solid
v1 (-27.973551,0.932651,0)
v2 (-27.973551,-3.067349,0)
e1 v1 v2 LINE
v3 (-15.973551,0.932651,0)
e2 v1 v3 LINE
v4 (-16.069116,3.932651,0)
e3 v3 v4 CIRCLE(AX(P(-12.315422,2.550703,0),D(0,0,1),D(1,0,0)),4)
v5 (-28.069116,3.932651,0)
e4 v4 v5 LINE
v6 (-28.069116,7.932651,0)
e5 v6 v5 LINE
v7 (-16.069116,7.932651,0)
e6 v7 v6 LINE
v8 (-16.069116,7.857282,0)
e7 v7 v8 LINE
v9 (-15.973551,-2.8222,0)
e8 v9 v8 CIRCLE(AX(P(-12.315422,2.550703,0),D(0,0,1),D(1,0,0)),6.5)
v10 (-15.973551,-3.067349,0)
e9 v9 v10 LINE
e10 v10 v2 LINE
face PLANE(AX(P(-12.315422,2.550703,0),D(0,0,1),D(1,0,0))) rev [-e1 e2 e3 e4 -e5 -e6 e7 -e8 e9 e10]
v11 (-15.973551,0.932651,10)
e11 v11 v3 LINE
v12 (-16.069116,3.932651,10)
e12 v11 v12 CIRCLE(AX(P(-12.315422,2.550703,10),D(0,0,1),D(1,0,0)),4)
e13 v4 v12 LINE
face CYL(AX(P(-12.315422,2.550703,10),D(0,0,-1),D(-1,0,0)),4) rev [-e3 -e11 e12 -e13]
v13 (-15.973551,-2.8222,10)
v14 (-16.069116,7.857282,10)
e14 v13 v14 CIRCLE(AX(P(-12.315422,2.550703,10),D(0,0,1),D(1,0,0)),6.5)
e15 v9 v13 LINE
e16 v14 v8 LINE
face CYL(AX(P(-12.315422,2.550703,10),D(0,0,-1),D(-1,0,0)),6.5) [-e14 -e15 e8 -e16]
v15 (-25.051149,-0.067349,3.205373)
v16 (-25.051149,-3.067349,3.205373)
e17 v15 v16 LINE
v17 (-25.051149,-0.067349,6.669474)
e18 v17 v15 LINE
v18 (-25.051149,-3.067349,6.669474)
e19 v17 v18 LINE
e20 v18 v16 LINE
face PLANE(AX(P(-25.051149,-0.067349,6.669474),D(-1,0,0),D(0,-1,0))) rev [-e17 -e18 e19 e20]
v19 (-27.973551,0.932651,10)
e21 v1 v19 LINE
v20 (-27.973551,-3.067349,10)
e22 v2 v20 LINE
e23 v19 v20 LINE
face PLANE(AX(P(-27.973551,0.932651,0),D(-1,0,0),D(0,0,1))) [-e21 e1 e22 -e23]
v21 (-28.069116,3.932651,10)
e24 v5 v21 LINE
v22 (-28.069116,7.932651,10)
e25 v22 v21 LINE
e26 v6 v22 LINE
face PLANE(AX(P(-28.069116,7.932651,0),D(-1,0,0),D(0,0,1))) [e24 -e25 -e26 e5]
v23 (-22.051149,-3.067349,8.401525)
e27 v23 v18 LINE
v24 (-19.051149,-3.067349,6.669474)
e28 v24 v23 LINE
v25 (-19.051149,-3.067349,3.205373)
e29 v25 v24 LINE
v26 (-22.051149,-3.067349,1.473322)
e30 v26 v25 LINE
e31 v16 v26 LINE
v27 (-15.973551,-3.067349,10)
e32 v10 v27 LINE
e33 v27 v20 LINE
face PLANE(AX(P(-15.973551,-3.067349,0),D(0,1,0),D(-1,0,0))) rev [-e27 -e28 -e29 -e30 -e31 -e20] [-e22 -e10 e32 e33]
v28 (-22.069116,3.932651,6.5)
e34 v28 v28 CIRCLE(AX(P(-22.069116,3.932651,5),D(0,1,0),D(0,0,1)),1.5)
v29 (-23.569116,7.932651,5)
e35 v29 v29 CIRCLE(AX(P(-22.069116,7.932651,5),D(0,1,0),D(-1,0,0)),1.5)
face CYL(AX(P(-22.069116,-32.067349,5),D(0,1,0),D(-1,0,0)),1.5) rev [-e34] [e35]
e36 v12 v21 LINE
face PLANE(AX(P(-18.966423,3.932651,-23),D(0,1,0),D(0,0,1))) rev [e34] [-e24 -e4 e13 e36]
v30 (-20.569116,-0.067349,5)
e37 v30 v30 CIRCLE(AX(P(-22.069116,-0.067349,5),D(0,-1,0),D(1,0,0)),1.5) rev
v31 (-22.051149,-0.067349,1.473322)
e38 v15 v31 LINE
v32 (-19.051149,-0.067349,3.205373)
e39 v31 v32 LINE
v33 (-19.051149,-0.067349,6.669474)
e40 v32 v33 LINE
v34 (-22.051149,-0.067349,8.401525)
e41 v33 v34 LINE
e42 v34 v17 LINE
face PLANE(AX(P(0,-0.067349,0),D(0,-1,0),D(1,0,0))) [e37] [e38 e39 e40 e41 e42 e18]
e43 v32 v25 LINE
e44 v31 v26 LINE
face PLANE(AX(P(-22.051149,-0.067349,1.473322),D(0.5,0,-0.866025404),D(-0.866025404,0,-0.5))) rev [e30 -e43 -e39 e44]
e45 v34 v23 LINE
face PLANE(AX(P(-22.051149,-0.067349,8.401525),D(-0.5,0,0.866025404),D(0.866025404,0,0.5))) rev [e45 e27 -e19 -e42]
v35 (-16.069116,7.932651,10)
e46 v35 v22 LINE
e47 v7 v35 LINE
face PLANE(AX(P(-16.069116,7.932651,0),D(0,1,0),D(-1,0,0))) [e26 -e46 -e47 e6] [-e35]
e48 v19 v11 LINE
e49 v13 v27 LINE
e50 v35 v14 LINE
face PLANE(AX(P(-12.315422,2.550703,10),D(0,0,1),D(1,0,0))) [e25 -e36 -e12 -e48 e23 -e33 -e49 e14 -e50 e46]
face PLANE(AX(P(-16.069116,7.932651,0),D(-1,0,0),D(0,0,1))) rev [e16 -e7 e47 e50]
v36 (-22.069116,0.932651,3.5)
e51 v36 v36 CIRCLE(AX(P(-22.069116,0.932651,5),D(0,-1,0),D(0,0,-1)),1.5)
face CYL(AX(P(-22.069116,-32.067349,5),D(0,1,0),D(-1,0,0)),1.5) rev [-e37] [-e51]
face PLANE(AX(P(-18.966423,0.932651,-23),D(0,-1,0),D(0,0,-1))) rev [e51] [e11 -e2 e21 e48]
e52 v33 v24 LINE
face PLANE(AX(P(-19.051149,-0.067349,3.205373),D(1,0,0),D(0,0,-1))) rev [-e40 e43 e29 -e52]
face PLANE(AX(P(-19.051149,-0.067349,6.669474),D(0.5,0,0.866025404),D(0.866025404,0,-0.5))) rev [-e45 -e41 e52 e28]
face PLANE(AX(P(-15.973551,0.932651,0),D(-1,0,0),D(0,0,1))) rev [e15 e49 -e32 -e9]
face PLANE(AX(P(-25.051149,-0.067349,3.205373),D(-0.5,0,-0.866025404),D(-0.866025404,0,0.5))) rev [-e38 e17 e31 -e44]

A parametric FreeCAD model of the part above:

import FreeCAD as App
import Part
import Sketcher
Q = App.Units.Quantity


def add_polygon(sketch, points):
    """Adds a closed chain of lines whose ends are joined by coincident constraints."""
    first, n = sketch.GeometryCount, len(points)
    for a, b in zip(points, points[1:] + points[:1]):
        sketch.addGeometry(Part.LineSegment(App.Vector(*a, 0), App.Vector(*b, 0)), False)
    for i in range(n):
        sketch.addConstraint(Sketcher.Constraint("Coincident", first + i, 2, first + (i + 1) % n, 1))

doc = App.newDocument("Part")
params = doc.addObject("Spreadsheet::Sheet", "Params")
for row, (alias, value) in enumerate([
    ("sketch1_diameter", "13 mm"),
    ("sketch1_diameter2", "8 mm"),
    ("pad1_length", "10 mm"),
    ("sketch2_height", "3 mm"),
    ("pocket1_length", "33 mm"),
    ("sketch3_width", "12 mm"),
    ("sketch3_height", "4 mm"),
    ("pad2_length", "10 mm"),
    ("sketch4_diameter", "3 mm"),
    ("pocket2_length", "40 mm"),
    ("pocket3_length", "3 mm"),
], start=1):
    params.set(f"A{row}", alias)
    params.set(f"B{row}", "=" + value)
    params.setAlias(f"B{row}", alias)

body = doc.addObject("PartDesign::Body", "Body")

sketch1 = body.newObject("Sketcher::SketchObject", "Sketch")
sketch1.AttachmentSupport = (doc.getObject("XY_Plane"), [""])
sketch1.MapMode = "FlatFace"
sketch1.addGeometry(Part.Circle(App.Vector(-12.3, 2.6, 0), App.Vector(0, 0, 1), 6.5), False)
sketch1.addGeometry(Part.Circle(App.Vector(-12.3, 2.6, 0), App.Vector(0, 0, 1), 4), False)
sketch1.addConstraint(Sketcher.Constraint("Coincident", 1, 3, 0, 3))
sketch1.addConstraint(Sketcher.Constraint("Diameter", 0, Q("13 mm")))
sketch1.addConstraint(Sketcher.Constraint("Diameter", 1, Q("8 mm")))
sketch1.addConstraint(Sketcher.Constraint("DistanceX", 0, 3, -1, 1, Q("12.315422 mm")))
sketch1.addConstraint(Sketcher.Constraint("DistanceY", -1, 1, 0, 3, Q("2.550703 mm")))
sketch1.setExpression("Constraints[1]", "Params.sketch1_diameter")
sketch1.setExpression("Constraints[2]", "Params.sketch1_diameter2")
pad1 = body.newObject("PartDesign::Pad", "Pad")
pad1.Profile = sketch1
pad1.setExpression("Length", "Params.pad1_length")

sketch2 = body.newObject("Sketcher::SketchObject", "Sketch001")
sketch2.AttachmentSupport = (doc.getObject("XY_Plane"), [""])
sketch2.MapMode = "FlatFace"
sketch2.AttachmentOffset = App.Placement(App.Vector(0, 0, 10), App.Rotation())
add_polygon(sketch2, [(-19, 3.9), (-19, 0.9), (-15.7, 0.9), (-15.7, 3.9)])
sketch2.addConstraint(Sketcher.Constraint("Vertical", 0))
sketch2.addConstraint(Sketcher.Constraint("Horizontal", 1))
sketch2.addConstraint(Sketcher.Constraint("Vertical", 2))
sketch2.addConstraint(Sketcher.Constraint("Horizontal", 3))
sketch2.addConstraint(Sketcher.Constraint("DistanceY", 0, 2, 0, 1, Q("3 mm")))
sketch2.addConstraint(Sketcher.Constraint("DistanceX", 1, 1, 1, 2, Q("3.218226 mm")))
sketch2.addConstraint(Sketcher.Constraint("DistanceY", -1, 1, 0, 2, Q("0.932651 mm")))
sketch2.addConstraint(Sketcher.Constraint("DistanceX", 0, 2, -1, 1, Q("18.966423 mm")))
sketch2.setExpression("Constraints[8]", "Params.sketch2_height")
pocket1 = body.newObject("PartDesign::Pocket", "Pocket")
pocket1.Profile = sketch2
pocket1.setExpression("Length", "Params.pocket1_length")

sketch3 = body.newObject("Sketcher::SketchObject", "Sketch002")
sketch3.AttachmentSupport = (doc.getObject("XY_Plane"), [""])
sketch3.MapMode = "FlatFace"
sketch3.AttachmentOffset = App.Placement(App.Vector(0, 0, 10), App.Rotation())
add_polygon(sketch3, [(-28, 0.9), (-28, -3.1), (-16, -3.1), (-16, 0.9)])
add_polygon(sketch3, [(-28.1, 7.9), (-28.1, 3.9), (-16.1, 3.9), (-16.1, 7.9)])
sketch3.addConstraint(Sketcher.Constraint("Vertical", 0))
sketch3.addConstraint(Sketcher.Constraint("Horizontal", 1))
sketch3.addConstraint(Sketcher.Constraint("Vertical", 2))
sketch3.addConstraint(Sketcher.Constraint("Horizontal", 3))
sketch3.addConstraint(Sketcher.Constraint("Vertical", 4))
sketch3.addConstraint(Sketcher.Constraint("Horizontal", 5))
sketch3.addConstraint(Sketcher.Constraint("Vertical", 6))
sketch3.addConstraint(Sketcher.Constraint("Horizontal", 7))
sketch3.addConstraint(Sketcher.Constraint("Equal", 3, 5))
sketch3.addConstraint(Sketcher.Constraint("Equal", 2, 4))
sketch3.addConstraint(Sketcher.Constraint("DistanceX", 1, 1, 1, 2, Q("12 mm")))
sketch3.addConstraint(Sketcher.Constraint("DistanceY", 0, 2, 0, 1, Q("4 mm")))
sketch3.addConstraint(Sketcher.Constraint("DistanceY", 3, 2, 4, 2, Q("3 mm")))
sketch3.addConstraint(Sketcher.Constraint("DistanceX", 0, 2, -1, 1, Q("27.973551 mm")))
sketch3.addConstraint(Sketcher.Constraint("DistanceY", 0, 2, -1, 1, Q("3.067349 mm")))
sketch3.addConstraint(Sketcher.Constraint("DistanceX", 4, 2, -1, 1, Q("28.069116 mm")))
sketch3.setExpression("Constraints[18]", "Params.sketch3_width")
sketch3.setExpression("Constraints[19]", "Params.sketch3_height")
pad2 = body.newObject("PartDesign::Pad", "Pad001")
pad2.Profile = sketch3
pad2.setExpression("Length", "Params.pad2_length")
pad2.Reversed = True

sketch4 = body.newObject("Sketcher::SketchObject", "Sketch003")
sketch4.AttachmentSupport = (doc.getObject("XZ_Plane"), [""])
sketch4.MapMode = "FlatFace"
sketch4.AttachmentOffset = App.Placement(App.Vector(0, 0, -7.932651), App.Rotation())
sketch4.addGeometry(Part.Circle(App.Vector(-22.1, 5, 0), App.Vector(0, 0, 1), 1.5), False)
sketch4.addConstraint(Sketcher.Constraint("Diameter", 0, Q("3 mm")))
sketch4.addConstraint(Sketcher.Constraint("DistanceY", -1, 1, 0, 3, Q("5 mm")))
sketch4.addConstraint(Sketcher.Constraint("DistanceX", 0, 3, -1, 1, Q("22.069116 mm")))
sketch4.setExpression("Constraints[0]", "Params.sketch4_diameter")
pocket2 = body.newObject("PartDesign::Pocket", "Pocket001")
pocket2.Profile = sketch4
pocket2.setExpression("Length", "Params.pocket2_length")
pocket2.Reversed = True

sketch5 = body.newObject("Sketcher::SketchObject", "Sketch004")
sketch5.AttachmentSupport = (doc.getObject("XZ_Plane"), [""])
sketch5.MapMode = "FlatFace"
sketch5.AttachmentOffset = App.Placement(App.Vector(0, 0, 3.067349), App.Rotation())
add_polygon(sketch5, [(-19.1, 6.7), (-22.1, 8.4), (-25.1, 6.7), (-25.1, 3.2), (-22.1, 1.5), (-19.1, 3.2)])
sketch5.addConstraint(Sketcher.Constraint("Vertical", 2))
sketch5.addConstraint(Sketcher.Constraint("Vertical", 5))
sketch5.addConstraint(Sketcher.Constraint("Parallel", 0, 3))
sketch5.addConstraint(Sketcher.Constraint("Parallel", 1, 4))
sketch5.addConstraint(Sketcher.Constraint("Horizontal", 2, 2, 4, 2))
sketch5.addConstraint(Sketcher.Constraint("Horizontal", 1, 2, 5, 2))
sketch5.addConstraint(Sketcher.Constraint("Vertical", 0, 2, 3, 2))
sketch5.addConstraint(Sketcher.Constraint("Angle", 0, Q("150 deg")))
sketch5.addConstraint(Sketcher.Constraint("DistanceX", 1, 2, 0, 2, Q("3 mm")))
sketch5.addConstraint(Sketcher.Constraint("DistanceY", 2, 2, 2, 1, Q("3.464102 mm")))
sketch5.addConstraint(Sketcher.Constraint("DistanceX", 0, 2, -1, 1, Q("22.051149 mm")))
sketch5.addConstraint(Sketcher.Constraint("DistanceY", -1, 1, 3, 2, Q("1.473322 mm")))
pocket3 = body.newObject("PartDesign::Pocket", "Pocket002")
pocket3.Profile = sketch5
pocket3.setExpression("Length", "Params.pocket3_length")

doc.recompute()
